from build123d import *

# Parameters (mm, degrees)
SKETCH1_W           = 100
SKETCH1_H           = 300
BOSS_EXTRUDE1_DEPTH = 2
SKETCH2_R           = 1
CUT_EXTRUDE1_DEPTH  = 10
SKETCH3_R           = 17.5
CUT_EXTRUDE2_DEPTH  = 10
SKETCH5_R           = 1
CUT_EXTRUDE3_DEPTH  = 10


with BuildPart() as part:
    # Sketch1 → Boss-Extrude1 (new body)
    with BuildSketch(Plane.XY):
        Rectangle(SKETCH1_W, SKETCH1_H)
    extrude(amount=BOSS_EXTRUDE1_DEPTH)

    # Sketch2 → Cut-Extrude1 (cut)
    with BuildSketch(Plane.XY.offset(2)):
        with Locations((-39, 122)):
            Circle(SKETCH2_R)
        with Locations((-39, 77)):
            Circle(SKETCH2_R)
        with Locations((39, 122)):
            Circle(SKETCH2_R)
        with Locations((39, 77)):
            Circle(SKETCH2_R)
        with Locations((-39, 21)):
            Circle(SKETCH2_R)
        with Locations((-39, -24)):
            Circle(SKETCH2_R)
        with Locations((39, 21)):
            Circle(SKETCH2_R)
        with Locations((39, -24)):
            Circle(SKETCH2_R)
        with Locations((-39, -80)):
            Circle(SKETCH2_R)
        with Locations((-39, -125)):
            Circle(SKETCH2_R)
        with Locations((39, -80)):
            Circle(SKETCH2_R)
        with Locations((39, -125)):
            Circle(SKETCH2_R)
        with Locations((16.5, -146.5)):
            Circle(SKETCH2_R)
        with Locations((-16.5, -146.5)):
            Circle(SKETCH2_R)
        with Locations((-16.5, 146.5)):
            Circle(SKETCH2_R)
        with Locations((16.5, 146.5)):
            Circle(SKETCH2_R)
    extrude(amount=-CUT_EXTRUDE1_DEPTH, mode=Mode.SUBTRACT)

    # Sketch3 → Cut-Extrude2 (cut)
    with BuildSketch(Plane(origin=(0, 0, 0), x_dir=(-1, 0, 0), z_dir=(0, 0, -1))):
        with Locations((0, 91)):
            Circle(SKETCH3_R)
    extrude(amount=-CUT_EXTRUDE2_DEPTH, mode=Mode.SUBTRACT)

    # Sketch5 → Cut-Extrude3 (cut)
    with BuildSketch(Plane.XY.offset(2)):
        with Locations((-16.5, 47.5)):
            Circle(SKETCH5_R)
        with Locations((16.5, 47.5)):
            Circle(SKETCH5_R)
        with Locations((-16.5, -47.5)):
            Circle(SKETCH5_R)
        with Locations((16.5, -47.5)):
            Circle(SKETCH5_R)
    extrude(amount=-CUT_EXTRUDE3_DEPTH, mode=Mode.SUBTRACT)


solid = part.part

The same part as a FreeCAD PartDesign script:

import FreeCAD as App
import Part
import Sketcher

V = App.Vector

doc = App.newDocument("Part")
body = doc.addObject("PartDesign::Body", "Body")

# Sketch on XY plane
sketch1 = body.newObject("Sketcher::SketchObject", "Sketch")
sketch1.AttachmentSupport = (doc.getObject("XY_Plane"), [""])
sketch1.MapMode = "FlatFace"
sketch1.addGeometry([
    Part.LineSegment(V(-50, 150, 0), V(-50, -150, 0)),
    Part.LineSegment(V(-50, -150, 0), V(50, -150, 0)),
    Part.LineSegment(V(50, -150, 0), V(50, 150, 0)),
    Part.LineSegment(V(50, 150, 0), V(-50, 150, 0)),
], False)
sketch1.addConstraint([
    Sketcher.Constraint("Coincident", 0, 2, 1, 1),
    Sketcher.Constraint("Coincident", 1, 2, 2, 1),
    Sketcher.Constraint("Coincident", 2, 2, 3, 1),
    Sketcher.Constraint("Coincident", 3, 2, 0, 1),
    Sketcher.Constraint("Vertical", 0),
    Sketcher.Constraint("Horizontal", 1),
    Sketcher.Constraint("Vertical", 2),
    Sketcher.Constraint("Horizontal", 3),
    Sketcher.Constraint("Symmetric", 0, 2, 2, 2, -1, 1),
    Sketcher.Constraint("DistanceX", 1, 1, 1, 2, 100.0),
    Sketcher.Constraint("DistanceY", 0, 2, 0, 1, 300.0),
])
pad1 = body.newObject("PartDesign::Pad", "Pad")
pad1.Profile = sketch1
pad1.Length = 2

# Sketch on XY plane
sketch2 = body.newObject("Sketcher::SketchObject", "Sketch001")
sketch2.AttachmentSupport = (doc.getObject("XY_Plane"), [""])
sketch2.MapMode = "FlatFace"
sketch2.AttachmentOffset = App.Placement(V(0, 0, 2), App.Rotation())
sketch2.addGeometry([
    Part.Circle(V(-39, 122, 0), V(0, 0, 1), 1),  # 0
    Part.Circle(V(-39, 77, 0), V(0, 0, 1), 1),  # 1
    Part.Circle(V(39, 122, 0), V(0, 0, 1), 1),  # 2
    Part.Circle(V(39, 77, 0), V(0, 0, 1), 1),  # 3
    Part.Circle(V(-39, 21, 0), V(0, 0, 1), 1),  # 4
    Part.Circle(V(-39, -24, 0), V(0, 0, 1), 1),  # 5
    Part.Circle(V(39, 21, 0), V(0, 0, 1), 1),  # 6
    Part.Circle(V(39, -24, 0), V(0, 0, 1), 1),  # 7
    Part.Circle(V(-39, -80, 0), V(0, 0, 1), 1),  # 8
    Part.Circle(V(-39, -125, 0), V(0, 0, 1), 1),  # 9
    Part.Circle(V(39, -80, 0), V(0, 0, 1), 1),  # 10
    Part.Circle(V(39, -125, 0), V(0, 0, 1), 1),  # 11
    Part.Circle(V(16.5, -146.5, 0), V(0, 0, 1), 1),  # 12
    Part.Circle(V(-16.5, -146.5, 0), V(0, 0, 1), 1),  # 13
    Part.Circle(V(-16.5, 146.5, 0), V(0, 0, 1), 1),  # 14
    Part.Circle(V(16.5, 146.5, 0), V(0, 0, 1), 1),  # 15
], False)
sketch2.addConstraint([
    Sketcher.Constraint("Equal", 0, 1),
    Sketcher.Constraint("Equal", 1, 2),
    Sketcher.Constraint("Equal", 2, 3),
    Sketcher.Constraint("Equal", 3, 4),
    Sketcher.Constraint("Equal", 4, 5),
    Sketcher.Constraint("Equal", 5, 6),
    Sketcher.Constraint("Equal", 6, 7),
    Sketcher.Constraint("Equal", 7, 8),
    Sketcher.Constraint("Equal", 8, 9),
    Sketcher.Constraint("Equal", 9, 10),
    Sketcher.Constraint("Equal", 10, 11),
    Sketcher.Constraint("Equal", 11, 12),
    Sketcher.Constraint("Equal", 12, 13),
    Sketcher.Constraint("Equal", 13, 14),
    Sketcher.Constraint("Equal", 14, 15),
    Sketcher.Constraint("Symmetric", 12, 3, 14, 3, -1, 1),
    Sketcher.Constraint("Symmetric", 13, 3, 15, 3, -1, 1),
    Sketcher.Constraint("Symmetric", 0, 3, 2, 3, -2),
    Sketcher.Constraint("Symmetric", 1, 3, 3, 3, -2),
    Sketcher.Constraint("Symmetric", 4, 3, 6, 3, -2),
    Sketcher.Constraint("Symmetric", 5, 3, 7, 3, -2),
    Sketcher.Constraint("Symmetric", 8, 3, 10, 3, -2),
    Sketcher.Constraint("Symmetric", 9, 3, 11, 3, -2),
    Sketcher.Constraint("Symmetric", 12, 3, 13, 3, -2),
    Sketcher.Constraint("Vertical", 0, 3, 1, 3),
    Sketcher.Constraint("Vertical", 1, 3, 4, 3),
    Sketcher.Constraint("Vertical", 4, 3, 5, 3),
    Sketcher.Constraint("Vertical", 5, 3, 8, 3),
    Sketcher.Constraint("Vertical", 8, 3, 9, 3),
    Sketcher.Constraint("Diameter", 0, 2.0),
    Sketcher.Constraint("DistanceX", 0, 3, -1, 1, 39.0),
    Sketcher.Constraint("DistanceY", -1, 1, 0, 3, 122.0),
    Sketcher.Constraint("DistanceY", -1, 1, 1, 3, 77.0),
    Sketcher.Constraint("DistanceY", -1, 1, 4, 3, 21.0),
    Sketcher.Constraint("DistanceY", 5, 3, -1, 1, 24.0),
    Sketcher.Constraint("DistanceY", 8, 3, -1, 1, 80.0),
    Sketcher.Constraint("DistanceY", 9, 3, -1, 1, 125.0),
    Sketcher.Constraint("DistanceX", 13, 3, 12, 3, 33.0),
    Sketcher.Constraint("DistanceY", 12, 3, -1, 1, 146.5),
])
pocket1 = body.newObject("PartDesign::Pocket", "Pocket")
pocket1.Profile = sketch2
pocket1.Length = 10

# Sketch on XY plane
sketch3 = body.newObject("Sketcher::SketchObject", "Sketch002")
sketch3.AttachmentSupport = (doc.getObject("XY_Plane"), [""])
sketch3.MapMode = "FlatFace"
sketch3.addGeometry(Part.Circle(V(0, 91, 0), V(0, 0, 1), 17.5), False)
sketch3.addConstraint([
    Sketcher.Constraint("PointOnObject", 0, 3, -2),
    Sketcher.Constraint("Diameter", 0, 35.0),
    Sketcher.Constraint("DistanceY", -1, 1, 0, 3, 91.0),
])
pocket2 = body.newObject("PartDesign::Pocket", "Pocket001")
pocket2.Profile = sketch3
pocket2.Length = 10
pocket2.Reversed = True

# Sketch on XY plane
sketch4 = body.newObject("Sketcher::SketchObject", "Sketch003")
sketch4.AttachmentSupport = (doc.getObject("XY_Plane"), [""])
sketch4.MapMode = "FlatFace"
sketch4.AttachmentOffset = App.Placement(V(0, 0, 2), App.Rotation())
sketch4.addGeometry([
    Part.Circle(V(-16.5, 47.5, 0), V(0, 0, 1), 1),
    Part.Circle(V(16.5, 47.5, 0), V(0, 0, 1), 1),
    Part.Circle(V(-16.5, -47.5, 0), V(0, 0, 1), 1),
    Part.Circle(V(16.5, -47.5, 0), V(0, 0, 1), 1),
], False)
sketch4.addConstraint([
    Sketcher.Constraint("Equal", 0, 1),
    Sketcher.Constraint("Equal", 1, 2),
    Sketcher.Constraint("Equal", 2, 3),
    Sketcher.Constraint("Symmetric", 1, 3, 2, 3, -1, 1),
    Sketcher.Constraint("Symmetric", 0, 3, 3, 3, -1, 1),
    Sketcher.Constraint("Symmetric", 0, 3, 1, 3, -2),
    Sketcher.Constraint("Diameter", 0, 2.0),
    Sketcher.Constraint("DistanceX", 0, 3, 1, 3, 33.0),
    Sketcher.Constraint("DistanceY", 2, 3, 0, 3, 95.0),
])
pocket3 = body.newObject("PartDesign::Pocket", "Pocket002")
pocket3.Profile = sketch4
pocket3.Length = 10

doc.recompute()
